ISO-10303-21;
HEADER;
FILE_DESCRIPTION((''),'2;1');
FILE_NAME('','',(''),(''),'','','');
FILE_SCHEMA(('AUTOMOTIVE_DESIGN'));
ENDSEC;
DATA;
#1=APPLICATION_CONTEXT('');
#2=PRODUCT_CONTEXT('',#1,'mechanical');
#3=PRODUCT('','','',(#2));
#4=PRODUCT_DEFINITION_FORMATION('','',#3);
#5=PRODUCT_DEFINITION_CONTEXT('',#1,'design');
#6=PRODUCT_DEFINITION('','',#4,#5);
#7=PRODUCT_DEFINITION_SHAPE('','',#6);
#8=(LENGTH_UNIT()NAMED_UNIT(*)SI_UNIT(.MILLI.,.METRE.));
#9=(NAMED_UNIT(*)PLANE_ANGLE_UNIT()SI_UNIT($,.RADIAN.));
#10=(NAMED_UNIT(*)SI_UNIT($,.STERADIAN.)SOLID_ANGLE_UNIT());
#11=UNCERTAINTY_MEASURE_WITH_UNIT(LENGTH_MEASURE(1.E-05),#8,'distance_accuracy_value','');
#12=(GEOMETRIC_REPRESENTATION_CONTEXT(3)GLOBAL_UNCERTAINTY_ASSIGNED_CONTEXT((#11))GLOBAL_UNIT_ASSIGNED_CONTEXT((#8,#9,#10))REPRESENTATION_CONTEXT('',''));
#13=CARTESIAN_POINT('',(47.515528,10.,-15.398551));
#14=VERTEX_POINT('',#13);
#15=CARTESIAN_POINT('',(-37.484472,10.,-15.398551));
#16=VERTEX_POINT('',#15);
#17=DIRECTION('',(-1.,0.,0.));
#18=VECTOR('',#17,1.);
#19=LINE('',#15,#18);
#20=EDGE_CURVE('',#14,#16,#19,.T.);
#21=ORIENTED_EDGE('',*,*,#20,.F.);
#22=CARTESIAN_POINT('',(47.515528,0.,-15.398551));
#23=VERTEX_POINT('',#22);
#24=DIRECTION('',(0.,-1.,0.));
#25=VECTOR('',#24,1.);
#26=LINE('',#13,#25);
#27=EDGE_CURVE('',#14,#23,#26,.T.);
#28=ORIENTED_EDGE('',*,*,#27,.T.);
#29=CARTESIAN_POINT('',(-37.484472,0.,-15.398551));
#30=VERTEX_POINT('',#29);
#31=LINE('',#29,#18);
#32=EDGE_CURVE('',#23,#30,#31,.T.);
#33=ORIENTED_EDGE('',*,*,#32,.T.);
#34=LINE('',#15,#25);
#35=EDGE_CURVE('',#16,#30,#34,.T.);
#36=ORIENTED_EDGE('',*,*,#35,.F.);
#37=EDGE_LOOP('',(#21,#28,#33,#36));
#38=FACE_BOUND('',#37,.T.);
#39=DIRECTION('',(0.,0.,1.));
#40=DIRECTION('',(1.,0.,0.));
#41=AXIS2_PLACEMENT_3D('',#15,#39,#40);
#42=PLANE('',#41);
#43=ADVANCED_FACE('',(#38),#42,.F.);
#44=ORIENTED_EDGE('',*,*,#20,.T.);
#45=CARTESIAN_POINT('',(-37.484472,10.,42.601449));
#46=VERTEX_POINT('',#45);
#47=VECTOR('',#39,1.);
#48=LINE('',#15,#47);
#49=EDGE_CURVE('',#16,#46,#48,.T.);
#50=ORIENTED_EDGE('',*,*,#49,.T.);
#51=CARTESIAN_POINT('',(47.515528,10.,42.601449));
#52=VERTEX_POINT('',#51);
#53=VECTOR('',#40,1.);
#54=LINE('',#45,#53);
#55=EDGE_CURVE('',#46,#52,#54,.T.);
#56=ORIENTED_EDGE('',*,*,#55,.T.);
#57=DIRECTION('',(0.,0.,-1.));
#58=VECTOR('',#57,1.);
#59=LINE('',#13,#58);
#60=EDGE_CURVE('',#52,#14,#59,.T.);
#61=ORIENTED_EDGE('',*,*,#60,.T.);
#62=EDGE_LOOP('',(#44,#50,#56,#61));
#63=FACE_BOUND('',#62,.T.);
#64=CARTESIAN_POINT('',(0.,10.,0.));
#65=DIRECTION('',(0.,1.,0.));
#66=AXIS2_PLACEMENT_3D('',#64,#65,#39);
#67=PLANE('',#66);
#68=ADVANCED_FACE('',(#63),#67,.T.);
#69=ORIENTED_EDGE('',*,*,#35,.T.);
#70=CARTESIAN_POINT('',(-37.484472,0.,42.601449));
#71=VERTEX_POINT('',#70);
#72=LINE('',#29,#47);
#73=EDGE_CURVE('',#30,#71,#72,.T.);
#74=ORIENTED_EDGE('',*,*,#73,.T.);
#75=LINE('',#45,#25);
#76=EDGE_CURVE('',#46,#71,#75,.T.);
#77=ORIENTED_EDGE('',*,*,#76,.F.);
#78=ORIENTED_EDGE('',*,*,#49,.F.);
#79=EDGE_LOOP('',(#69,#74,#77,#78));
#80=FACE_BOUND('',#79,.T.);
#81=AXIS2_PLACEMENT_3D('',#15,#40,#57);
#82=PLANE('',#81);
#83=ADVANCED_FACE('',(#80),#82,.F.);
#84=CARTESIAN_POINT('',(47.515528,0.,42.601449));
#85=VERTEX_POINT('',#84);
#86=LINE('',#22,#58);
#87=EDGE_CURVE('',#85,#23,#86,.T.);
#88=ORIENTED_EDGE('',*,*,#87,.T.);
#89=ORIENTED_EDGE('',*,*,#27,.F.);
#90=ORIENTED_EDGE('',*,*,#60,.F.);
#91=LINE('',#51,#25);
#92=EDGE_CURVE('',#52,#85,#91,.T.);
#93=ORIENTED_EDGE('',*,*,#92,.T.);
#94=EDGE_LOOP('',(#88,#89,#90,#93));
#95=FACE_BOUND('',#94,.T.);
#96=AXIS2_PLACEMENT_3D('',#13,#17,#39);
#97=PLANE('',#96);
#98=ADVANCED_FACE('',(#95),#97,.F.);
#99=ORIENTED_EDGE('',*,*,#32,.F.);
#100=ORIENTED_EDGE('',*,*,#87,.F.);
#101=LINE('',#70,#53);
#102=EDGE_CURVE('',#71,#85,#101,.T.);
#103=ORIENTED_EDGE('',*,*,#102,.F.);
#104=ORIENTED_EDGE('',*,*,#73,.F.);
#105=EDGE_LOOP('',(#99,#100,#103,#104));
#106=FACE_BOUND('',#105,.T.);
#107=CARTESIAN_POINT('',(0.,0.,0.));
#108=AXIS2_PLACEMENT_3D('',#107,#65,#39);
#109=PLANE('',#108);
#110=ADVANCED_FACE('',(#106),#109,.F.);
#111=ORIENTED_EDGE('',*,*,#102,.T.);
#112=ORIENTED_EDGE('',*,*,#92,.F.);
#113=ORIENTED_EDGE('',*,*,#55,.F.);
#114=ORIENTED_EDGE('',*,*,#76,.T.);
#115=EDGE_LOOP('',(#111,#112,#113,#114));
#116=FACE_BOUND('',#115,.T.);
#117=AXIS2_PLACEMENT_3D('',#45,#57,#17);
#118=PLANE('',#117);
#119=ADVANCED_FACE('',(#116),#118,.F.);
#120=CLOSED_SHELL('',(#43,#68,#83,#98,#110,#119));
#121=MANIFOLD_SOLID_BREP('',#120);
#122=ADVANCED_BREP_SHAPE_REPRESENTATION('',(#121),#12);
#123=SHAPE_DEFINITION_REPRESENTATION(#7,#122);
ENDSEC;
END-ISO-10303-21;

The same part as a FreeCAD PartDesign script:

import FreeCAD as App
import Part
import Sketcher

doc = App.newDocument("Part")
body = doc.addObject("PartDesign::Body", "Body")

# Sketch on XZ plane
sketch1 = body.newObject("Sketcher::SketchObject", "Sketch")
sketch1.AttachmentSupport = (doc.getObject("XZ_Plane"), [""])
sketch1.MapMode = "FlatFace"
sketch1.addGeometry(Part.LineSegment(App.Vector(-37.484472, -15.398551, 0), App.Vector(-37.484472, 42.601449, 0)), False)
sketch1.addGeometry(Part.LineSegment(App.Vector(-37.484472, 42.601449, 0), App.Vector(47.515528, 42.601449, 0)), False)
sketch1.addGeometry(Part.LineSegment(App.Vector(47.515528, 42.601449, 0), App.Vector(47.515528, -15.398551, 0)), False)
sketch1.addGeometry(Part.LineSegment(App.Vector(47.515528, -15.398551, 0), App.Vector(-37.484472, -15.398551, 0)), False)
sketch1.addConstraint(Sketcher.Constraint("Coincident", 0, 2, 1, 1))
sketch1.addConstraint(Sketcher.Constraint("Coincident", 1, 2, 2, 1))
sketch1.addConstraint(Sketcher.Constraint("Coincident", 2, 2, 3, 1))
sketch1.addConstraint(Sketcher.Constraint("Coincident", 3, 2, 0, 1))
sketch1.addConstraint(Sketcher.Constraint("Vertical", 0))
sketch1.addConstraint(Sketcher.Constraint("Horizontal", 1))
sketch1.addConstraint(Sketcher.Constraint("Vertical", 2))
sketch1.addConstraint(Sketcher.Constraint("Horizontal", 3))
sketch1.addConstraint(Sketcher.Constraint("DistanceX", 1, 1, 1, 2, 85.0))
sketch1.addConstraint(Sketcher.Constraint("DistanceY", 0, 1, 0, 2, 58.0))
sketch1.addConstraint(Sketcher.Constraint("DistanceY", -1, 1, 0, 2, 42.601449))
sketch1.addConstraint(Sketcher.Constraint("DistanceX", 0, 2, -1, 1, 37.484472))
pad1 = body.newObject("PartDesign::Pad", "Pad")
pad1.Profile = sketch1
pad1.Length = 10
pad1.Reversed = True

doc.recompute()
